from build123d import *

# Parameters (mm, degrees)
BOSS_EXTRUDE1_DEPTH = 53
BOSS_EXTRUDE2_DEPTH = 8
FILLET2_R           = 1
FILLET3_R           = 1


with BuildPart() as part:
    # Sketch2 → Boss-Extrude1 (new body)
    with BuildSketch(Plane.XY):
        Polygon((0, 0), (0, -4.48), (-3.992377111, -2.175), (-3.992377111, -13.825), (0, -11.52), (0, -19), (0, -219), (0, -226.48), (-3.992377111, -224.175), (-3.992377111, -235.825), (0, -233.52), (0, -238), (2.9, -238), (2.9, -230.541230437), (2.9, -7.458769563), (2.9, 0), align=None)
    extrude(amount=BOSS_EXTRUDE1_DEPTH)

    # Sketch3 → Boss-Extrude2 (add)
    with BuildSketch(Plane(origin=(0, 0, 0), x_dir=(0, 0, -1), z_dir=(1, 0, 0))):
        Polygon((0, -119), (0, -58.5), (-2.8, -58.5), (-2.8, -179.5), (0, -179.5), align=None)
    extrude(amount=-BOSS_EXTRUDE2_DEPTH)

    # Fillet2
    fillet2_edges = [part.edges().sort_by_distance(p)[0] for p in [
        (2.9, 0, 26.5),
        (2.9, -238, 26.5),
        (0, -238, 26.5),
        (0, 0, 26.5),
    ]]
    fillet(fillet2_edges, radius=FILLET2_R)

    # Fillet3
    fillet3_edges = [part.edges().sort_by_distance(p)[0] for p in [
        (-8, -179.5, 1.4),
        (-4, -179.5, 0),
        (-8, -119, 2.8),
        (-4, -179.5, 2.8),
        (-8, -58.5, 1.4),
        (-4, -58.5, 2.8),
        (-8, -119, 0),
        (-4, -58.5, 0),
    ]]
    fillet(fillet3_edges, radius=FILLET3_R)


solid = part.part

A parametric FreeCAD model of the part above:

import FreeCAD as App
import Part
import Sketcher
from FreeCAD import Vector
Q = App.Units.Quantity


def edges_at(feature, points):
    """Names of the edges that pass closest to the given points."""
    edges = feature.Shape.Edges
    near = lambda p: min(range(len(edges)), key=lambda i: edges[i].distToShape(Part.Vertex(*p))[0])
    return sorted({f"Edge{near(p) + 1}" for p in points})

doc = App.newDocument("Part")
body = doc.addObject("PartDesign::Body", "Body")

sketch1 = body.newObject("Sketcher::SketchObject", "Sketch")
sketch1.AttachmentSupport = (doc.getObject("XY_Plane"), [""])
sketch1.MapMode = "FlatFace"
sketch1.addGeometry([
    Part.LineSegment(Vector(0, 0, 0), Vector(0, -4.48, 0)),
    Part.LineSegment(Vector(0, -4.48, 0), Vector(-3.992377, -2.175, 0)),
    Part.LineSegment(Vector(-3.992377, -2.175, 0), Vector(-3.992377, -13.825, 0)),
    Part.LineSegment(Vector(-3.992377, -13.825, 0), Vector(0, -11.52, 0)),
    Part.LineSegment(Vector(0, -11.52, 0), Vector(0, -226.48, 0)),
    Part.LineSegment(Vector(0, -226.48, 0), Vector(-3.992377, -224.175, 0)),
    Part.LineSegment(Vector(-3.992377, -224.175, 0), Vector(-3.992377, -235.825, 0)),
    Part.LineSegment(Vector(-3.992377, -235.825, 0), Vector(0, -233.52, 0)),
    Part.LineSegment(Vector(0, -233.52, 0), Vector(0, -238, 0)),
    Part.LineSegment(Vector(0, -238, 0), Vector(2.9, -238, 0)),
    Part.LineSegment(Vector(2.9, -238, 0), Vector(2.9, 0, 0)),
    Part.LineSegment(Vector(2.9, 0, 0), Vector(0, 0, 0)),
], False)
sketch1.addConstraint([
    Sketcher.Constraint("Coincident", 0, 2, 1, 1),
    Sketcher.Constraint("Coincident", 1, 2, 2, 1),
    Sketcher.Constraint("Coincident", 2, 2, 3, 1),
    Sketcher.Constraint("Coincident", 3, 2, 4, 1),
    Sketcher.Constraint("Coincident", 4, 2, 5, 1),
    Sketcher.Constraint("Coincident", 5, 2, 6, 1),
    Sketcher.Constraint("Coincident", 6, 2, 7, 1),
    Sketcher.Constraint("Coincident", 7, 2, 8, 1),
    Sketcher.Constraint("Coincident", 8, 2, 9, 1),
    Sketcher.Constraint("Coincident", 9, 2, 10, 1),
    Sketcher.Constraint("Coincident", 10, 2, 11, 1),
    Sketcher.Constraint("Coincident", 11, 2, 0, 1),
    Sketcher.Constraint("Vertical", 0),
    Sketcher.Constraint("Vertical", 2),
    Sketcher.Constraint("Vertical", 4),
    Sketcher.Constraint("Vertical", 6),
    Sketcher.Constraint("Vertical", 8),
    Sketcher.Constraint("Horizontal", 9),
    Sketcher.Constraint("Vertical", 10),
    Sketcher.Constraint("Horizontal", 11),
    Sketcher.Constraint("Coincident", 11, 2, -1, 1),
    Sketcher.Constraint("PointOnObject", 3, 2, -2),
    Sketcher.Constraint("PointOnObject", 7, 2, -2),
    Sketcher.Constraint("Parallel", 1, 5),
    Sketcher.Constraint("Parallel", 3, 7),
    Sketcher.Constraint("Vertical", 2, 2, 5, 2),
    Sketcher.Constraint("Equal", 2, 6),
    Sketcher.Constraint("Equal", 0, 8),
    Sketcher.Constraint("Equal", 1, 3),
    Sketcher.Constraint("DistanceY", 10, 1, 10, 2, 238.0),
    Sketcher.Constraint("Angle", 1, Q("150 deg")),
    Sketcher.Constraint("DistanceX", 9, 1, 9, 2, 2.9),
    Sketcher.Constraint("DistanceY", 4, 2, 0, 2, 222.0),
    Sketcher.Constraint("DistanceY", 0, 2, 0, 1, 4.48),
    Sketcher.Constraint("DistanceY", 2, 2, 2, 1, 11.65),
])
pad1 = body.newObject("PartDesign::Pad", "Pad")
pad1.Profile = sketch1
pad1.Length = 53

sketch2 = body.newObject("Sketcher::SketchObject", "Sketch001")
sketch2.AttachmentSupport = (doc.getObject("YZ_Plane"), [""])
sketch2.MapMode = "FlatFace"
sketch2.addGeometry([
    Part.LineSegment(Vector(-58.5, 0, 0), Vector(-58.5, 2.8, 0)),
    Part.LineSegment(Vector(-58.5, 2.8, 0), Vector(-179.5, 2.8, 0)),
    Part.LineSegment(Vector(-179.5, 2.8, 0), Vector(-179.5, 0, 0)),
    Part.LineSegment(Vector(-179.5, 0, 0), Vector(-58.5, 0, 0)),
], False)
sketch2.addConstraint([
    Sketcher.Constraint("Coincident", 0, 2, 1, 1),
    Sketcher.Constraint("Coincident", 1, 2, 2, 1),
    Sketcher.Constraint("Coincident", 2, 2, 3, 1),
    Sketcher.Constraint("Coincident", 3, 2, 0, 1),
    Sketcher.Constraint("Vertical", 0),
    Sketcher.Constraint("Horizontal", 1),
    Sketcher.Constraint("Vertical", 2),
    Sketcher.Constraint("Horizontal", 3),
    Sketcher.Constraint("PointOnObject", 2, 2, -1),
    Sketcher.Constraint("DistanceX", 1, 2, 1, 1, 121.0),
    Sketcher.Constraint("DistanceY", 0, 1, 0, 2, 2.8),
    Sketcher.Constraint("DistanceX", 0, 2, -1, 1, 58.5),
])
pad2 = body.newObject("PartDesign::Pad", "Pad001")
pad2.Profile = sketch2
pad2.Length = 8
pad2.Reversed = True
doc.recompute()

fillet = body.newObject("PartDesign::Fillet", "Fillet")
fillet.Base = (pad2, edges_at(pad2, [
    (2.9, 0, 26.5),
    (2.9, -238, 26.5),
    (0, -238, 26.5),
    (0, 0, 26.5),
]))
fillet.Radius = 1
doc.recompute()

fillet2 = body.newObject("PartDesign::Fillet", "Fillet001")
fillet2.Base = (fillet, edges_at(fillet, [
    (-8, -179.5, 1.4),
    (-4, -179.5, 0),
    (-8, -119, 2.8),
    (-4, -179.5, 2.8),
    (-8, -58.5, 1.4),
    (-4, -58.5, 2.8),
    (-8, -119, 0),
    (-4, -58.5, 0),
]))
fillet2.Radius = 1

doc.recompute()
